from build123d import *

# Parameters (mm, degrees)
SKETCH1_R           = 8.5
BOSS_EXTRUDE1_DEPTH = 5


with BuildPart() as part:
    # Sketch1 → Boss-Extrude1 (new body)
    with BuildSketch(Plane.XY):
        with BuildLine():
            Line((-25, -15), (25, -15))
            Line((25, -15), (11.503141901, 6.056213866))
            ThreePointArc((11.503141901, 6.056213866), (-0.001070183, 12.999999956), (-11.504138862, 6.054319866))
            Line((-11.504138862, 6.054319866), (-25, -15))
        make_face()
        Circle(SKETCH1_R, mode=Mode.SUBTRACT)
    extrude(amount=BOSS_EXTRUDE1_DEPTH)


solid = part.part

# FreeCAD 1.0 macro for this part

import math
import FreeCAD as App
import Part
import Sketcher
Q = App.Units.Quantity

doc = App.newDocument("Part")
body = doc.addObject("PartDesign::Body", "Body")

# Sketch on XY plane
sketch1 = body.newObject("Sketcher::SketchObject", "Sketch")
sketch1.AttachmentSupport = (doc.getObject("XY_Plane"), [""])
sketch1.MapMode = "FlatFace"
sketch1.addGeometry([
    Part.LineSegment(App.Vector(-25, -15, 0), App.Vector(25, -15, 0)),  # 0
    Part.LineSegment(App.Vector(25, -15, 0), App.Vector(11.503142, 6.056214, 0)),  # 1
    Part.ArcOfCircle(Part.Circle(App.Vector(0, 0, 0), App.Vector(0, 0, 1), 13), math.radians(27.766063), math.radians(152.243371)),  # 2
    Part.LineSegment(App.Vector(-11.504139, 6.05432, 0), App.Vector(-25, -15, 0)),  # 3
    Part.Circle(App.Vector(0, 0, 0), App.Vector(0, 0, 1), 8.5),  # 4
], False)
sketch1.addConstraint([
    Sketcher.Constraint("Coincident", 0, 2, 1, 1),
    Sketcher.Constraint("Coincident", 1, 2, 2, 1),
    Sketcher.Constraint("Coincident", 2, 2, 3, 1),
    Sketcher.Constraint("Coincident", 3, 2, 0, 1),
    Sketcher.Constraint("Horizontal", 0),
    Sketcher.Constraint("Coincident", 2, 3, -1, 1),
    Sketcher.Constraint("Coincident", 4, 3, -1, 1),
    Sketcher.Constraint("Diameter", 4, Q("17 mm")),
    Sketcher.Constraint("Radius", 2, Q("13 mm")),
    Sketcher.Constraint("DistanceX", 0, 1, 0, 2, Q("50 mm")),
    Sketcher.Constraint("DistanceX", -1, 1, 0, 2, Q("25 mm")),
    Sketcher.Constraint("DistanceY", 0, 2, -1, 1, Q("15 mm")),
    Sketcher.Constraint("Distance", 3, Q("25.008452 mm")),
    Sketcher.Constraint("DistanceX", -1, 1, 1, 2, Q("11.503142 mm")),
])
pad1 = body.newObject("PartDesign::Pad", "Pad")
pad1.Profile = sketch1
pad1.Length = 5

doc.recompute()
